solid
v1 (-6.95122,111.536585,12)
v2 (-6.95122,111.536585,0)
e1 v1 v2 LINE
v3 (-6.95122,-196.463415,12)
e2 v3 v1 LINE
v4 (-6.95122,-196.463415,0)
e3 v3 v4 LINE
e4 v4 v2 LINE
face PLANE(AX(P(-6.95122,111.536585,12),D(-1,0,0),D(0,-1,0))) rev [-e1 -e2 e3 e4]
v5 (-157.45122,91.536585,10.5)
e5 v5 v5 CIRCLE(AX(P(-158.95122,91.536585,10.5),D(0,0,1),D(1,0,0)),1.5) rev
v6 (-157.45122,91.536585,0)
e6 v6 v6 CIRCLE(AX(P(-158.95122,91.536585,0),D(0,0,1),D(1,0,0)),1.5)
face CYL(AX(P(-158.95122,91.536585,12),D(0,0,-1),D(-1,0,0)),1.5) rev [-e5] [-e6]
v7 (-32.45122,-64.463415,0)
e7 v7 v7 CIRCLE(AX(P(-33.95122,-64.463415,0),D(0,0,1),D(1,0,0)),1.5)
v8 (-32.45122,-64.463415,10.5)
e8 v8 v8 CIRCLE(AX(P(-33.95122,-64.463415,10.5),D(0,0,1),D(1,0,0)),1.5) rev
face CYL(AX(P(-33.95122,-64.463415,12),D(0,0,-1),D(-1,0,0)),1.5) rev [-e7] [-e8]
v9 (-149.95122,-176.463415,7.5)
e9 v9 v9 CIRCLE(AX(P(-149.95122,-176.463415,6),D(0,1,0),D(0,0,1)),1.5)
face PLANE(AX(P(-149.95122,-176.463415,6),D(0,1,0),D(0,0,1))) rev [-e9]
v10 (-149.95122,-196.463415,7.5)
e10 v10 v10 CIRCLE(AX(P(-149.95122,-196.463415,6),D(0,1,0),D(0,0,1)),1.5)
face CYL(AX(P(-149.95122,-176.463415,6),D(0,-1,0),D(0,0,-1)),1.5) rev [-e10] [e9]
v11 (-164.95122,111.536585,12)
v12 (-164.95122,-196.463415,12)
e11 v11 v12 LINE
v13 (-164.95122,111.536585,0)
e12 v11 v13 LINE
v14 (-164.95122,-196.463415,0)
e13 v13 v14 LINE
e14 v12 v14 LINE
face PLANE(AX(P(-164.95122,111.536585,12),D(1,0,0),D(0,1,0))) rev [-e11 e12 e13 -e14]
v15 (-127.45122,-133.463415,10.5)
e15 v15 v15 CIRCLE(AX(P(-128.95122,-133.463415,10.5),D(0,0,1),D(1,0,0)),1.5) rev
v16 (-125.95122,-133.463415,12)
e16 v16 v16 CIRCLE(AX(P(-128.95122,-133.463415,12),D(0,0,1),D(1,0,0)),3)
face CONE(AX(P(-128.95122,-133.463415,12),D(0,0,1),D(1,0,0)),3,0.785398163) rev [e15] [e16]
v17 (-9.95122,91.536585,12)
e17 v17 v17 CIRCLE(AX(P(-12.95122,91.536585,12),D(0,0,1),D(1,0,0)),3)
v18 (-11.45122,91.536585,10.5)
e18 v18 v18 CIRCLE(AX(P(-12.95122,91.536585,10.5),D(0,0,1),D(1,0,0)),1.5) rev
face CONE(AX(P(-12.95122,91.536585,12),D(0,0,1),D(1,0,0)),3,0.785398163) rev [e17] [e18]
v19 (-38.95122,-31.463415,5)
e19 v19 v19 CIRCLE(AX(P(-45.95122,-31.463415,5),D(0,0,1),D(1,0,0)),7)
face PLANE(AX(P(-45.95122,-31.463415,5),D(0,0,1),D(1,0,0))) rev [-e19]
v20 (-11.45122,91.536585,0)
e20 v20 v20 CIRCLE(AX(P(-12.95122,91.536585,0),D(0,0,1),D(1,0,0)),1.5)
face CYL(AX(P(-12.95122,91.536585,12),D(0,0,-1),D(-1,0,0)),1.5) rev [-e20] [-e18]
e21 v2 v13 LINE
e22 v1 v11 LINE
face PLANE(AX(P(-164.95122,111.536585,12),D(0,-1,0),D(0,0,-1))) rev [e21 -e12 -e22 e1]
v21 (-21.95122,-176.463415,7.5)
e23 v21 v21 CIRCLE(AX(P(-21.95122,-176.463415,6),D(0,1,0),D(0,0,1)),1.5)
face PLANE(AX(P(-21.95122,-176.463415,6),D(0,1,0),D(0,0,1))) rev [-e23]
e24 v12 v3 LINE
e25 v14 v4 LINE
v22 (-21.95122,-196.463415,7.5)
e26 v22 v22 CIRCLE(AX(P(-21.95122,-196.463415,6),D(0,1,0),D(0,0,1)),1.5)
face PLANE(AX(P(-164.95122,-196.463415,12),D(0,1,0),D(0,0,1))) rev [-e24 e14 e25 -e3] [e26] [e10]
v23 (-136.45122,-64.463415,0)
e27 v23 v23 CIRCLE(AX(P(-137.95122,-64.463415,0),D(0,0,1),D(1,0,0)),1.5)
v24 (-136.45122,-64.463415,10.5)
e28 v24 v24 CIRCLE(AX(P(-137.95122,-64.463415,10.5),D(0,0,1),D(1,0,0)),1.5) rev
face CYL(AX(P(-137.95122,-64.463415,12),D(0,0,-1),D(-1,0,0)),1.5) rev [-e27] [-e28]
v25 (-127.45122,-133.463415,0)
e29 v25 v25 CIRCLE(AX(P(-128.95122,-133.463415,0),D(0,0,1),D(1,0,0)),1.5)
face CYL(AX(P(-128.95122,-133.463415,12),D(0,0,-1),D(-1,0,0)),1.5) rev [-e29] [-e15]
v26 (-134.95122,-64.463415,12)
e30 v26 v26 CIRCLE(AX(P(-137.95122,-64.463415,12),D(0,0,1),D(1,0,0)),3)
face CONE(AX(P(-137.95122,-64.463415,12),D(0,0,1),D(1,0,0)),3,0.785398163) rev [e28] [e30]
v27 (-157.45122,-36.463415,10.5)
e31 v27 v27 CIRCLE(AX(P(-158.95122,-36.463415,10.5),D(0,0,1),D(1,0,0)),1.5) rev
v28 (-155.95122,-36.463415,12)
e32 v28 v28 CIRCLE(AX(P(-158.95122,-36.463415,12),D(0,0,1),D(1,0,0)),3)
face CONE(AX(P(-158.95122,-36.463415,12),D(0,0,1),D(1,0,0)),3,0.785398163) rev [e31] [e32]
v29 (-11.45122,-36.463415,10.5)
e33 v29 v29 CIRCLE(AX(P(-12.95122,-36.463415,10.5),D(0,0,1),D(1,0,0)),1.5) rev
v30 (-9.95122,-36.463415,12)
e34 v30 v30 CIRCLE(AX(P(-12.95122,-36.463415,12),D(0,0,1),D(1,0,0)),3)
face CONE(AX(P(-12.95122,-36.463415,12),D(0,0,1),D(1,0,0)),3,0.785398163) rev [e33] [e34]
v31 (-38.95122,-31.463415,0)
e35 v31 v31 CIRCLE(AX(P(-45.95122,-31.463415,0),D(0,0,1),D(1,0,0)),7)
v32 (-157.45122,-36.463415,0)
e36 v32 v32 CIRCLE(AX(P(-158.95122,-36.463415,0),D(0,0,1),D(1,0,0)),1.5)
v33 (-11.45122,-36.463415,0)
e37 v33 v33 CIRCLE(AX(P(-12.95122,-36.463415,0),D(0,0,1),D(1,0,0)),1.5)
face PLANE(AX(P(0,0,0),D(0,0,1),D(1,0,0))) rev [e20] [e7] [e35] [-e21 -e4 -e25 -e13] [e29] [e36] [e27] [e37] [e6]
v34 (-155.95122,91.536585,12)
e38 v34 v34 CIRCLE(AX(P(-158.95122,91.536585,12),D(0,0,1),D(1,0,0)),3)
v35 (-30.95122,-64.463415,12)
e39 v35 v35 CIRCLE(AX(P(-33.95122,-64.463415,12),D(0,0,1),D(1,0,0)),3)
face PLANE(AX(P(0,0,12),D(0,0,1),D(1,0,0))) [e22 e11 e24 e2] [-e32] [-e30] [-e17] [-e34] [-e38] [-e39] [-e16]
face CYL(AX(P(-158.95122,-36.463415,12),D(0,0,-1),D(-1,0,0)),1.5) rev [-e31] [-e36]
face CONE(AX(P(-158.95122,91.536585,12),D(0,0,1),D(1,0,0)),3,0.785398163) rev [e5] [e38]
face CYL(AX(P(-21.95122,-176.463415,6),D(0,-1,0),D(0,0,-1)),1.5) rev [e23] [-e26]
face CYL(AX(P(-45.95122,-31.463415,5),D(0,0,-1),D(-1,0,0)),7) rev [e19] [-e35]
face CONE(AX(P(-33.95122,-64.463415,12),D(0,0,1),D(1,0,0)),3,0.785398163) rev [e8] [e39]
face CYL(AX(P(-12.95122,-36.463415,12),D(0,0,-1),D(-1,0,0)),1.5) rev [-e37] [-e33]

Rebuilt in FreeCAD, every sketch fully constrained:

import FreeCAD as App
import Part
import Sketcher

doc = App.newDocument("Part")
body = doc.addObject("PartDesign::Body", "Body")

# Sketch on XY plane
sketch1 = doc.addObject("Sketcher::SketchObject", "Sketch")
body.addObject(sketch1)
sketch1.AttachmentSupport = (doc.XY_Plane, [""])
sketch1.MapMode = "FlatFace"
sketch1.addGeometry(Part.LineSegment(App.Vector(-165, 111.5, 0), App.Vector(-165, -196.5, 0)), False)
sketch1.addGeometry(Part.LineSegment(App.Vector(-165, -196.5, 0), App.Vector(-7, -196.5, 0)), False)
sketch1.addGeometry(Part.LineSegment(App.Vector(-7, -196.5, 0), App.Vector(-7, 111.5, 0)), False)
sketch1.addGeometry(Part.LineSegment(App.Vector(-7, 111.5, 0), App.Vector(-165, 111.5, 0)), False)
sketch1.addGeometry(Part.Circle(App.Vector(-129, -133.5, 0), App.Vector(0, 0, 1), 1.5), False)
sketch1.addGeometry(Part.Circle(App.Vector(-138, -64.5, 0), App.Vector(0, 0, 1), 1.5), False)
sketch1.addGeometry(Part.Circle(App.Vector(-159, -36.5, 0), App.Vector(0, 0, 1), 1.5), False)
sketch1.addGeometry(Part.Circle(App.Vector(-34, -64.5, 0), App.Vector(0, 0, 1), 1.5), False)
sketch1.addGeometry(Part.Circle(App.Vector(-13, -36.5, 0), App.Vector(0, 0, 1), 1.5), False)
sketch1.addGeometry(Part.Circle(App.Vector(-159, 91.5, 0), App.Vector(0, 0, 1), 1.5), False)
sketch1.addGeometry(Part.Circle(App.Vector(-13, 91.5, 0), App.Vector(0, 0, 1), 1.5), False)
sketch1.addConstraint(Sketcher.Constraint("Coincident", 0, 2, 1, 1))
sketch1.addConstraint(Sketcher.Constraint("Coincident", 1, 2, 2, 1))
sketch1.addConstraint(Sketcher.Constraint("Coincident", 2, 2, 3, 1))
sketch1.addConstraint(Sketcher.Constraint("Coincident", 3, 2, 0, 1))
sketch1.addConstraint(Sketcher.Constraint("Vertical", 0))
sketch1.addConstraint(Sketcher.Constraint("Horizontal", 1))
sketch1.addConstraint(Sketcher.Constraint("Vertical", 2))
sketch1.addConstraint(Sketcher.Constraint("Horizontal", 3))
sketch1.addConstraint(Sketcher.Constraint("Equal", 4, 5))
sketch1.addConstraint(Sketcher.Constraint("Equal", 5, 6))
sketch1.addConstraint(Sketcher.Constraint("Equal", 6, 7))
sketch1.addConstraint(Sketcher.Constraint("Equal", 7, 8))
sketch1.addConstraint(Sketcher.Constraint("Equal", 8, 9))
sketch1.addConstraint(Sketcher.Constraint("Equal", 9, 10))
sketch1.addConstraint(Sketcher.Constraint("Horizontal", 5, 3, 7, 3))
sketch1.addConstraint(Sketcher.Constraint("Horizontal", 6, 3, 8, 3))
sketch1.addConstraint(Sketcher.Constraint("Horizontal", 9, 3, 10, 3))
sketch1.addConstraint(Sketcher.Constraint("Vertical", 6, 3, 9, 3))
sketch1.addConstraint(Sketcher.Constraint("Vertical", 8, 3, 10, 3))
sketch1.addConstraint(Sketcher.Constraint("Diameter", 4, 3.0))
sketch1.addConstraint(Sketcher.Constraint("DistanceX", 1, 1, 1, 2, 158.0))
sketch1.addConstraint(Sketcher.Constraint("DistanceY", 0, 2, 0, 1, 308.0))
sketch1.addConstraint(Sketcher.Constraint("DistanceX", 5, 3, 4, 3, 9.0))
sketch1.addConstraint(Sketcher.Constraint("DistanceY", 4, 3, 5, 3, 69.0))
sketch1.addConstraint(Sketcher.Constraint("DistanceX", 6, 3, 5, 3, 21.0))
sketch1.addConstraint(Sketcher.Constraint("DistanceY", 5, 3, 6, 3, 28.0))
sketch1.addConstraint(Sketcher.Constraint("DistanceX", 5, 3, 7, 3, 104.0))
sketch1.addConstraint(Sketcher.Constraint("DistanceX", 7, 3, 8, 3, 21.0))
sketch1.addConstraint(Sketcher.Constraint("DistanceY", 6, 3, 9, 3, 128.0))
sketch1.addConstraint(Sketcher.Constraint("DistanceX", 0, 2, 4, 3, 36.0))
sketch1.addConstraint(Sketcher.Constraint("DistanceY", 0, 2, 4, 3, 63.0))
sketch1.addConstraint(Sketcher.Constraint("DistanceX", 4, 3, -1, 1, 128.95122))
sketch1.addConstraint(Sketcher.Constraint("DistanceY", 4, 3, -1, 1, 133.463415))
pad1 = doc.addObject("PartDesign::Pad", "Pad")
body.addObject(pad1)
pad1.Profile = sketch1
pad1.Length = 12

# Sketch on XZ plane
sketch2 = doc.addObject("Sketcher::SketchObject", "Sketch001")
body.addObject(sketch2)
sketch2.AttachmentSupport = (doc.XZ_Plane, [""])
sketch2.MapMode = "FlatFace"
sketch2.AttachmentOffset = App.Placement(App.Vector(0, 0, 196.463415), App.Rotation())
sketch2.addGeometry(Part.Circle(App.Vector(-150, 6, 0), App.Vector(0, 0, 1), 1.5), False)
sketch2.addGeometry(Part.Circle(App.Vector(-22, 6, 0), App.Vector(0, 0, 1), 1.5), False)
sketch2.addConstraint(Sketcher.Constraint("Equal", 0, 1))
sketch2.addConstraint(Sketcher.Constraint("Horizontal", 0, 3, 1, 3))
sketch2.addConstraint(Sketcher.Constraint("Diameter", 0, 3.0))
sketch2.addConstraint(Sketcher.Constraint("DistanceY", -1, 1, 0, 3, 6.0))
sketch2.addConstraint(Sketcher.Constraint("DistanceX", 0, 3, 1, 3, 128.0))
sketch2.addConstraint(Sketcher.Constraint("DistanceX", 0, 3, -1, 1, 149.95122))
pocket1 = doc.addObject("PartDesign::Pocket", "Pocket")
body.addObject(pocket1)
pocket1.Profile = sketch2
pocket1.Length = 20

# Sketch on YZ plane
sketch3 = doc.addObject("Sketcher::SketchObject", "Sketch002")
body.addObject(sketch3)
sketch3.AttachmentSupport = (doc.YZ_Plane, [""])
sketch3.MapMode = "FlatFace"
sketch3.AttachmentOffset = App.Placement(App.Vector(0, 0, -137.95122), App.Rotation())
sketch3.addGeometry(Part.LineSegment(App.Vector(-64.5, 12, 0), App.Vector(-67.5, 12, 0)), False)
sketch3.addGeometry(Part.LineSegment(App.Vector(-67.5, 12, 0), App.Vector(-64.5, 9, 0)), False)
sketch3.addGeometry(Part.LineSegment(App.Vector(-64.5, 9, 0), App.Vector(-64.5, 12, 0)), False)
sketch3.addGeometry(Part.LineSegment(App.Vector(-64.5, 12, 0), App.Vector(-64.5, 9, 0)), True)  # axis
sketch3.addConstraint(Sketcher.Constraint("Coincident", 0, 2, 1, 1))
sketch3.addConstraint(Sketcher.Constraint("Coincident", 1, 2, 2, 1))
sketch3.addConstraint(Sketcher.Constraint("Coincident", 2, 2, 0, 1))
sketch3.addConstraint(Sketcher.Constraint("Horizontal", 0))
sketch3.addConstraint(Sketcher.Constraint("Vertical", 2))
sketch3.addConstraint(Sketcher.Constraint("Vertical", 3))
sketch3.addConstraint(Sketcher.Constraint("Coincident", 3, 1, 2, 2))
sketch3.addConstraint(Sketcher.Constraint("Equal", 0, 2))
sketch3.addConstraint(Sketcher.Constraint("Equal", 2, 3))
sketch3.addConstraint(Sketcher.Constraint("DistanceX", 0, 2, 0, 1, 3.0))
sketch3.addConstraint(Sketcher.Constraint("DistanceY", -1, 1, 0, 2, 12.0))
sketch3.addConstraint(Sketcher.Constraint("DistanceX", 0, 2, -1, 1, 67.463415))
groove = doc.addObject("PartDesign::Groove", "Groove")
body.addObject(groove)
groove.Profile = sketch3
groove.ReferenceAxis = (sketch3, ["Axis0"])
groove.Angle = 360

# Sketch on YZ plane
sketch4 = doc.addObject("Sketcher::SketchObject", "Sketch003")
body.addObject(sketch4)
sketch4.AttachmentSupport = (doc.YZ_Plane, [""])
sketch4.MapMode = "FlatFace"
sketch4.AttachmentOffset = App.Placement(App.Vector(0, 0, -33.95122), App.Rotation())
sketch4.addGeometry(Part.LineSegment(App.Vector(-64.5, 12, 0), App.Vector(-67.5, 12, 0)), False)
sketch4.addGeometry(Part.LineSegment(App.Vector(-67.5, 12, 0), App.Vector(-64.5, 9, 0)), False)
sketch4.addGeometry(Part.LineSegment(App.Vector(-64.5, 9, 0), App.Vector(-64.5, 12, 0)), False)
sketch4.addGeometry(Part.LineSegment(App.Vector(-64.5, 12, 0), App.Vector(-64.5, 9, 0)), True)  # axis
sketch4.addConstraint(Sketcher.Constraint("Coincident", 0, 2, 1, 1))
sketch4.addConstraint(Sketcher.Constraint("Coincident", 1, 2, 2, 1))
sketch4.addConstraint(Sketcher.Constraint("Coincident", 2, 2, 0, 1))
sketch4.addConstraint(Sketcher.Constraint("Horizontal", 0))
sketch4.addConstraint(Sketcher.Constraint("Vertical", 2))
sketch4.addConstraint(Sketcher.Constraint("Vertical", 3))
sketch4.addConstraint(Sketcher.Constraint("Coincident", 3, 1, 2, 2))
sketch4.addConstraint(Sketcher.Constraint("Equal", 0, 2))
sketch4.addConstraint(Sketcher.Constraint("Equal", 2, 3))
sketch4.addConstraint(Sketcher.Constraint("DistanceX", 0, 2, 0, 1, 3.0))
sketch4.addConstraint(Sketcher.Constraint("DistanceY", -1, 1, 0, 2, 12.0))
sketch4.addConstraint(Sketcher.Constraint("DistanceX", 0, 2, -1, 1, 67.463415))
groove2 = doc.addObject("PartDesign::Groove", "Groove001")
body.addObject(groove2)
groove2.Profile = sketch4
groove2.ReferenceAxis = (sketch4, ["Axis0"])
groove2.Angle = 360

# Sketch on YZ plane
sketch5 = doc.addObject("Sketcher::SketchObject", "Sketch004")
body.addObject(sketch5)
sketch5.AttachmentSupport = (doc.YZ_Plane, [""])
sketch5.MapMode = "FlatFace"
sketch5.AttachmentOffset = App.Placement(App.Vector(0, 0, -128.95122), App.Rotation())
sketch5.addGeometry(Part.LineSegment(App.Vector(-133.5, 12, 0), App.Vector(-136.5, 12, 0)), False)
sketch5.addGeometry(Part.LineSegment(App.Vector(-136.5, 12, 0), App.Vector(-133.5, 9, 0)), False)
sketch5.addGeometry(Part.LineSegment(App.Vector(-133.5, 9, 0), App.Vector(-133.5, 12, 0)), False)
sketch5.addGeometry(Part.LineSegment(App.Vector(-133.5, 12, 0), App.Vector(-133.5, 9, 0)), True)  # axis
sketch5.addConstraint(Sketcher.Constraint("Coincident", 0, 2, 1, 1))
sketch5.addConstraint(Sketcher.Constraint("Coincident", 1, 2, 2, 1))
sketch5.addConstraint(Sketcher.Constraint("Coincident", 2, 2, 0, 1))
sketch5.addConstraint(Sketcher.Constraint("Horizontal", 0))
sketch5.addConstraint(Sketcher.Constraint("Vertical", 2))
sketch5.addConstraint(Sketcher.Constraint("Vertical", 3))
sketch5.addConstraint(Sketcher.Constraint("Coincident", 3, 1, 2, 2))
sketch5.addConstraint(Sketcher.Constraint("Equal", 0, 2))
sketch5.addConstraint(Sketcher.Constraint("Equal", 2, 3))
sketch5.addConstraint(Sketcher.Constraint("DistanceX", 0, 2, 0, 1, 3.0))
sketch5.addConstraint(Sketcher.Constraint("DistanceY", -1, 1, 0, 2, 12.0))
sketch5.addConstraint(Sketcher.Constraint("DistanceX", 0, 2, -1, 1, 136.463415))
groove3 = doc.addObject("PartDesign::Groove", "Groove002")
body.addObject(groove3)
groove3.Profile = sketch5
groove3.ReferenceAxis = (sketch5, ["Axis0"])
groove3.Angle = 360

# Sketch on YZ plane
sketch6 = doc.addObject("Sketcher::SketchObject", "Sketch005")
body.addObject(sketch6)
sketch6.AttachmentSupport = (doc.YZ_Plane, [""])
sketch6.MapMode = "FlatFace"
sketch6.AttachmentOffset = App.Placement(App.Vector(0, 0, -158.95122), App.Rotation())
sketch6.addGeometry(Part.LineSegment(App.Vector(91.5, 12, 0), App.Vector(88.5, 12, 0)), False)
sketch6.addGeometry(Part.LineSegment(App.Vector(88.5, 12, 0), App.Vector(91.5, 9, 0)), False)
sketch6.addGeometry(Part.LineSegment(App.Vector(91.5, 9, 0), App.Vector(91.5, 12, 0)), False)
sketch6.addGeometry(Part.LineSegment(App.Vector(91.5, 12, 0), App.Vector(91.5, 9, 0)), True)  # axis
sketch6.addConstraint(Sketcher.Constraint("Coincident", 0, 2, 1, 1))
sketch6.addConstraint(Sketcher.Constraint("Coincident", 1, 2, 2, 1))
sketch6.addConstraint(Sketcher.Constraint("Coincident", 2, 2, 0, 1))
sketch6.addConstraint(Sketcher.Constraint("Horizontal", 0))
sketch6.addConstraint(Sketcher.Constraint("Vertical", 2))
sketch6.addConstraint(Sketcher.Constraint("Vertical", 3))
sketch6.addConstraint(Sketcher.Constraint("Coincident", 3, 1, 2, 2))
sketch6.addConstraint(Sketcher.Constraint("Equal", 0, 2))
sketch6.addConstraint(Sketcher.Constraint("Equal", 2, 3))
sketch6.addConstraint(Sketcher.Constraint("DistanceX", 0, 2, 0, 1, 3.0))
sketch6.addConstraint(Sketcher.Constraint("DistanceY", -1, 1, 0, 2, 12.0))
sketch6.addConstraint(Sketcher.Constraint("DistanceX", -1, 1, 0, 2, 88.536585))
groove4 = doc.addObject("PartDesign::Groove", "Groove003")
body.addObject(groove4)
groove4.Profile = sketch6
groove4.ReferenceAxis = (sketch6, ["Axis0"])
groove4.Angle = 360

# Sketch on YZ plane
sketch7 = doc.addObject("Sketcher::SketchObject", "Sketch006")
body.addObject(sketch7)
sketch7.AttachmentSupport = (doc.YZ_Plane, [""])
sketch7.MapMode = "FlatFace"
sketch7.AttachmentOffset = App.Placement(App.Vector(0, 0, -158.95122), App.Rotation())
sketch7.addGeometry(Part.LineSegment(App.Vector(-36.5, 12, 0), App.Vector(-39.5, 12, 0)), False)
sketch7.addGeometry(Part.LineSegment(App.Vector(-39.5, 12, 0), App.Vector(-36.5, 9, 0)), False)
sketch7.addGeometry(Part.LineSegment(App.Vector(-36.5, 9, 0), App.Vector(-36.5, 12, 0)), False)
sketch7.addGeometry(Part.LineSegment(App.Vector(-36.5, 12, 0), App.Vector(-36.5, 9, 0)), True)  # axis
sketch7.addConstraint(Sketcher.Constraint("Coincident", 0, 2, 1, 1))
sketch7.addConstraint(Sketcher.Constraint("Coincident", 1, 2, 2, 1))
sketch7.addConstraint(Sketcher.Constraint("Coincident", 2, 2, 0, 1))
sketch7.addConstraint(Sketcher.Constraint("Horizontal", 0))
sketch7.addConstraint(Sketcher.Constraint("Vertical", 2))
sketch7.addConstraint(Sketcher.Constraint("Vertical", 3))
sketch7.addConstraint(Sketcher.Constraint("Coincident", 3, 1, 2, 2))
sketch7.addConstraint(Sketcher.Constraint("Equal", 0, 2))
sketch7.addConstraint(Sketcher.Constraint("Equal", 2, 3))
sketch7.addConstraint(Sketcher.Constraint("DistanceX", 0, 2, 0, 1, 3.0))
sketch7.addConstraint(Sketcher.Constraint("DistanceY", -1, 1, 0, 2, 12.0))
sketch7.addConstraint(Sketcher.Constraint("DistanceX", 0, 2, -1, 1, 39.463415))
groove5 = doc.addObject("PartDesign::Groove", "Groove004")
body.addObject(groove5)
groove5.Profile = sketch7
groove5.ReferenceAxis = (sketch7, ["Axis0"])
groove5.Angle = 360

# Sketch on YZ plane
sketch8 = doc.addObject("Sketcher::SketchObject", "Sketch007")
body.addObject(sketch8)
sketch8.AttachmentSupport = (doc.YZ_Plane, [""])
sketch8.MapMode = "FlatFace"
sketch8.AttachmentOffset = App.Placement(App.Vector(0, 0, -12.95122), App.Rotation())
sketch8.addGeometry(Part.LineSegment(App.Vector(91.5, 12, 0), App.Vector(88.5, 12, 0)), False)
sketch8.addGeometry(Part.LineSegment(App.Vector(88.5, 12, 0), App.Vector(91.5, 9, 0)), False)
sketch8.addGeometry(Part.LineSegment(App.Vector(91.5, 9, 0), App.Vector(91.5, 12, 0)), False)
sketch8.addGeometry(Part.LineSegment(App.Vector(91.5, 12, 0), App.Vector(91.5, 9, 0)), True)  # axis
sketch8.addConstraint(Sketcher.Constraint("Coincident", 0, 2, 1, 1))
sketch8.addConstraint(Sketcher.Constraint("Coincident", 1, 2, 2, 1))
sketch8.addConstraint(Sketcher.Constraint("Coincident", 2, 2, 0, 1))
sketch8.addConstraint(Sketcher.Constraint("Horizontal", 0))
sketch8.addConstraint(Sketcher.Constraint("Vertical", 2))
sketch8.addConstraint(Sketcher.Constraint("Vertical", 3))
sketch8.addConstraint(Sketcher.Constraint("Coincident", 3, 1, 2, 2))
sketch8.addConstraint(Sketcher.Constraint("Equal", 0, 2))
sketch8.addConstraint(Sketcher.Constraint("Equal", 2, 3))
sketch8.addConstraint(Sketcher.Constraint("DistanceX", 0, 2, 0, 1, 3.0))
sketch8.addConstraint(Sketcher.Constraint("DistanceY", -1, 1, 0, 2, 12.0))
sketch8.addConstraint(Sketcher.Constraint("DistanceX", -1, 1, 0, 2, 88.536585))
groove6 = doc.addObject("PartDesign::Groove", "Groove005")
body.addObject(groove6)
groove6.Profile = sketch8
groove6.ReferenceAxis = (sketch8, ["Axis0"])
groove6.Angle = 360

# Sketch on YZ plane
sketch9 = doc.addObject("Sketcher::SketchObject", "Sketch008")
body.addObject(sketch9)
sketch9.AttachmentSupport = (doc.YZ_Plane, [""])
sketch9.MapMode = "FlatFace"
sketch9.AttachmentOffset = App.Placement(App.Vector(0, 0, -12.95122), App.Rotation())
sketch9.addGeometry(Part.LineSegment(App.Vector(-36.5, 12, 0), App.Vector(-39.5, 12, 0)), False)
sketch9.addGeometry(Part.LineSegment(App.Vector(-39.5, 12, 0), App.Vector(-36.5, 9, 0)), False)
sketch9.addGeometry(Part.LineSegment(App.Vector(-36.5, 9, 0), App.Vector(-36.5, 12, 0)), False)
sketch9.addGeometry(Part.LineSegment(App.Vector(-36.5, 12, 0), App.Vector(-36.5, 9, 0)), True)  # axis
sketch9.addConstraint(Sketcher.Constraint("Coincident", 0, 2, 1, 1))
sketch9.addConstraint(Sketcher.Constraint("Coincident", 1, 2, 2, 1))
sketch9.addConstraint(Sketcher.Constraint("Coincident", 2, 2, 0, 1))
sketch9.addConstraint(Sketcher.Constraint("Horizontal", 0))
sketch9.addConstraint(Sketcher.Constraint("Vertical", 2))
sketch9.addConstraint(Sketcher.Constraint("Vertical", 3))
sketch9.addConstraint(Sketcher.Constraint("Coincident", 3, 1, 2, 2))
sketch9.addConstraint(Sketcher.Constraint("Equal", 0, 2))
sketch9.addConstraint(Sketcher.Constraint("Equal", 2, 3))
sketch9.addConstraint(Sketcher.Constraint("DistanceX", 0, 2, 0, 1, 3.0))
sketch9.addConstraint(Sketcher.Constraint("DistanceY", -1, 1, 0, 2, 12.0))
sketch9.addConstraint(Sketcher.Constraint("DistanceX", 0, 2, -1, 1, 39.463415))
groove7 = doc.addObject("PartDesign::Groove", "Groove006")
body.addObject(groove7)
groove7.Profile = sketch9
groove7.ReferenceAxis = (sketch9, ["Axis0"])
groove7.Angle = 360

# Sketch on XY plane
sketch10 = doc.addObject("Sketcher::SketchObject", "Sketch009")
body.addObject(sketch10)
sketch10.AttachmentSupport = (doc.XY_Plane, [""])
sketch10.MapMode = "FlatFace"
sketch10.addGeometry(Part.Circle(App.Vector(-46, -31, 0), App.Vector(0, 0, 1), 7), False)
sketch10.addConstraint(Sketcher.Constraint("Diameter", 0, 14.0))
sketch10.addConstraint(Sketcher.Constraint("DistanceX", 0, 3, -1, 1, 45.95122))
sketch10.addConstraint(Sketcher.Constraint("DistanceY", 0, 3, -1, 1, 31.463415))
pocket2 = doc.addObject("PartDesign::Pocket", "Pocket001")
body.addObject(pocket2)
pocket2.Profile = sketch10
pocket2.Length = 5
pocket2.Reversed = True

doc.recompute()
